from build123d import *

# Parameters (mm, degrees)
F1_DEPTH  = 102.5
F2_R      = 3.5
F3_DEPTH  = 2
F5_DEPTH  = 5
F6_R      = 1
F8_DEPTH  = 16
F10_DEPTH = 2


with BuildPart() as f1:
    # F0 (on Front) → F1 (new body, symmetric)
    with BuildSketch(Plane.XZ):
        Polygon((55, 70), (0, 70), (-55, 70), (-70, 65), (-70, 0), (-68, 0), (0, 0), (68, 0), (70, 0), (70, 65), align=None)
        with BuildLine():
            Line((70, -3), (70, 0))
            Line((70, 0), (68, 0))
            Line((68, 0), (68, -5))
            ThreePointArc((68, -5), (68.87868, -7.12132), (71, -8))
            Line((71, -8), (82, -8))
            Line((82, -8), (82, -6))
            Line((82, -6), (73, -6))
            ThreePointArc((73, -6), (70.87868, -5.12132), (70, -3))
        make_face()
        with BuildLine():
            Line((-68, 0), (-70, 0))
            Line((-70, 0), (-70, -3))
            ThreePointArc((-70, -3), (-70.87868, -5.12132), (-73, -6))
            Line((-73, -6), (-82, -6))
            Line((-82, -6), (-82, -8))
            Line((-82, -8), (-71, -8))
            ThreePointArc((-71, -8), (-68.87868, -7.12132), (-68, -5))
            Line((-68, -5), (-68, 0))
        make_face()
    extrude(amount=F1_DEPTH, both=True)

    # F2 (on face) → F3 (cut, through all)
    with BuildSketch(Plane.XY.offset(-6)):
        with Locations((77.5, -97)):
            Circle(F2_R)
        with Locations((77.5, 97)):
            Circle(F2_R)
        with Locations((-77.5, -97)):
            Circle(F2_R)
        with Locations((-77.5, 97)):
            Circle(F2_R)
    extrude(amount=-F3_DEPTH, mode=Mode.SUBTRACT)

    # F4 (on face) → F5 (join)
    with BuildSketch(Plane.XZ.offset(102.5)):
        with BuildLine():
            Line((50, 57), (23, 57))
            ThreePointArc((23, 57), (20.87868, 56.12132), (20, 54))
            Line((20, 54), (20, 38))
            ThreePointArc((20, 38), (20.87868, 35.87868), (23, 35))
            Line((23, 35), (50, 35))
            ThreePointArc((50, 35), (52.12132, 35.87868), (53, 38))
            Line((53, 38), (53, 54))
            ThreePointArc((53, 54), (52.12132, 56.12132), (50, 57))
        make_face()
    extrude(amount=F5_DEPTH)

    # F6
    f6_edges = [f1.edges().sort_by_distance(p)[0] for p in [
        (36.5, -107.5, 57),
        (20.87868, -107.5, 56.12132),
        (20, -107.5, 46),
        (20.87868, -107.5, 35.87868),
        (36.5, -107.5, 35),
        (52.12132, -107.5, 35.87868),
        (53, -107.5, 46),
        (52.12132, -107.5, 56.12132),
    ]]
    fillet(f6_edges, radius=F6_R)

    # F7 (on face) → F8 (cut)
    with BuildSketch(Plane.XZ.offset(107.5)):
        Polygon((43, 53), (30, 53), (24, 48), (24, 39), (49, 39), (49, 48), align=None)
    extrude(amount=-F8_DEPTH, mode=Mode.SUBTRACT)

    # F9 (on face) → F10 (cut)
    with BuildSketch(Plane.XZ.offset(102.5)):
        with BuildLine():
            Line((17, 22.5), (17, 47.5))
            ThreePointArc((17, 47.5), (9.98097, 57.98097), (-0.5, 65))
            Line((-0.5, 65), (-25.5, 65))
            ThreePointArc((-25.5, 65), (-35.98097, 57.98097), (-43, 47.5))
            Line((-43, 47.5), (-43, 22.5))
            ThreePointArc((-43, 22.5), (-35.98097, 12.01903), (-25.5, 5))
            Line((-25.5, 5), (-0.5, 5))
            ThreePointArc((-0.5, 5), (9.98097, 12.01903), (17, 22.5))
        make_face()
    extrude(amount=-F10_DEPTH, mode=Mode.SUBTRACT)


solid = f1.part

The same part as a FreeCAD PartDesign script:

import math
import FreeCAD as App
import Part
import Sketcher
Q = App.Units.Quantity


def edges_at(feature, points):
    """Names of the edges that pass closest to the given points."""
    edges = feature.Shape.Edges
    near = lambda p: min(range(len(edges)), key=lambda i: edges[i].distToShape(Part.Vertex(*p))[0])
    return sorted({f"Edge{near(p) + 1}" for p in points})


def add_polygon(sketch, points):
    """Adds a closed chain of lines whose ends are joined by coincident constraints."""
    first, n = sketch.GeometryCount, len(points)
    for a, b in zip(points, points[1:] + points[:1]):
        sketch.addGeometry(Part.LineSegment(App.Vector(*a, 0), App.Vector(*b, 0)), False)
    for i in range(n):
        sketch.addConstraint(Sketcher.Constraint("Coincident", first + i, 2, first + (i + 1) % n, 1))

doc = App.newDocument("Part")
body = doc.addObject("PartDesign::Body", "Body")

sketch1 = doc.addObject("Sketcher::SketchObject", "Sketch")
body.addObject(sketch1)
sketch1.AttachmentSupport = (doc.XZ_Plane, [""])
sketch1.MapMode = "FlatFace"
sketch1.addGeometry([
    Part.LineSegment(App.Vector(55, 70, 0), App.Vector(-55, 70, 0)),
    Part.LineSegment(App.Vector(-55, 70, 0), App.Vector(-70, 65, 0)),
    Part.LineSegment(App.Vector(-70, 65, 0), App.Vector(-70, -3, 0)),
    Part.ArcOfCircle(Part.Circle(App.Vector(-73, -3, 0), App.Vector(0, 0, 1), 3), math.radians(-90), math.radians(0)),
    Part.LineSegment(App.Vector(-73, -6, 0), App.Vector(-82, -6, 0)),
    Part.LineSegment(App.Vector(-82, -6, 0), App.Vector(-82, -8, 0)),
    Part.LineSegment(App.Vector(-82, -8, 0), App.Vector(-71, -8, 0)),
    Part.ArcOfCircle(Part.Circle(App.Vector(-71, -5, 0), App.Vector(0, 0, 1), 3), math.radians(-90), math.radians(0)),
    Part.LineSegment(App.Vector(-68, -5, 0), App.Vector(-68, 0, 0)),
    Part.LineSegment(App.Vector(-68, 0, 0), App.Vector(68, 0, 0)),
    Part.LineSegment(App.Vector(68, 0, 0), App.Vector(68, -5, 0)),
    Part.ArcOfCircle(Part.Circle(App.Vector(71, -5, 0), App.Vector(0, 0, 1), 3), math.radians(-180), math.radians(-90)),
    Part.LineSegment(App.Vector(71, -8, 0), App.Vector(82, -8, 0)),
    Part.LineSegment(App.Vector(82, -8, 0), App.Vector(82, -6, 0)),
    Part.LineSegment(App.Vector(82, -6, 0), App.Vector(73, -6, 0)),
    Part.ArcOfCircle(Part.Circle(App.Vector(73, -3, 0), App.Vector(0, 0, 1), 3), math.radians(-180), math.radians(-90)),
    Part.LineSegment(App.Vector(70, -3, 0), App.Vector(70, 65, 0)),
    Part.LineSegment(App.Vector(70, 65, 0), App.Vector(55, 70, 0)),
], False)
sketch1.addConstraint([
    Sketcher.Constraint("Coincident", 0, 2, 1, 1),
    Sketcher.Constraint("Coincident", 1, 2, 2, 1),
    Sketcher.Constraint("Tangent", 2, 2, 3, 2),
    Sketcher.Constraint("Tangent", 3, 1, 4, 1),
    Sketcher.Constraint("Coincident", 4, 2, 5, 1),
    Sketcher.Constraint("Coincident", 5, 2, 6, 1),
    Sketcher.Constraint("Tangent", 6, 2, 7, 1),
    Sketcher.Constraint("Tangent", 7, 2, 8, 1),
    Sketcher.Constraint("Coincident", 8, 2, 9, 1),
    Sketcher.Constraint("Coincident", 9, 2, 10, 1),
    Sketcher.Constraint("Tangent", 10, 2, 11, 1),
    Sketcher.Constraint("Tangent", 11, 2, 12, 1),
    Sketcher.Constraint("Coincident", 12, 2, 13, 1),
    Sketcher.Constraint("Coincident", 13, 2, 14, 1),
    Sketcher.Constraint("Tangent", 14, 2, 15, 2),
    Sketcher.Constraint("Tangent", 15, 1, 16, 1),
    Sketcher.Constraint("Coincident", 16, 2, 17, 1),
    Sketcher.Constraint("Coincident", 17, 2, 0, 1),
    Sketcher.Constraint("Horizontal", 0),
    Sketcher.Constraint("Vertical", 2),
    Sketcher.Constraint("Horizontal", 4),
    Sketcher.Constraint("Vertical", 5),
    Sketcher.Constraint("Horizontal", 6),
    Sketcher.Constraint("Vertical", 8),
    Sketcher.Constraint("Horizontal", 9),
    Sketcher.Constraint("Vertical", 10),
    Sketcher.Constraint("Horizontal", 12),
    Sketcher.Constraint("Vertical", 13),
    Sketcher.Constraint("Horizontal", 14),
    Sketcher.Constraint("Vertical", 16),
    Sketcher.Constraint("Equal", 3, 7),
    Sketcher.Constraint("Equal", 7, 11),
    Sketcher.Constraint("Equal", 11, 15),
    Sketcher.Constraint("Symmetric", 8, 2, 9, 2, -1, 1),
    Sketcher.Constraint("Symmetric", 3, 3, 15, 3, -2),
    Sketcher.Constraint("Symmetric", 5, 2, 12, 2, -2),
    Sketcher.Constraint("Horizontal", 1, 2, 16, 2),
    Sketcher.Constraint("Equal", 1, 17),
    Sketcher.Constraint("Radius", 3, Q("3.000001 mm")),
    Sketcher.Constraint("DistanceX", 0, 2, 0, 1, Q("110 mm")),
    Sketcher.Constraint("DistanceX", 4, 2, 4, 1, Q("9 mm")),
    Sketcher.Constraint("DistanceX", 6, 1, 6, 2, Q("11 mm")),
    Sketcher.Constraint("DistanceX", 9, 1, 9, 2, Q("136 mm")),
    Sketcher.Constraint("DistanceY", 2, 2, 2, 1, Q("68 mm")),
    Sketcher.Constraint("DistanceY", 5, 2, 5, 1, Q("2 mm")),
    Sketcher.Constraint("DistanceY", 8, 1, 8, 2, Q("5 mm")),
    Sketcher.Constraint("DistanceY", -1, 1, 0, 2, Q("70 mm")),
])
pad1 = doc.addObject("PartDesign::Pad", "Pad")
body.addObject(pad1)
pad1.Profile = sketch1
pad1.Length = 205
pad1.Midplane = True

sketch2 = doc.addObject("Sketcher::SketchObject", "Sketch001")
body.addObject(sketch2)
sketch2.AttachmentSupport = (doc.XY_Plane, [""])
sketch2.MapMode = "FlatFace"
sketch2.AttachmentOffset = App.Placement(App.Vector(0, 0, -6), App.Rotation())
sketch2.addGeometry([
    Part.Circle(App.Vector(77.5, -97, 0), App.Vector(0, 0, 1), 3.5),
    Part.Circle(App.Vector(77.5, 97, 0), App.Vector(0, 0, 1), 3.5),
    Part.Circle(App.Vector(-77.5, -97, 0), App.Vector(0, 0, 1), 3.5),
    Part.Circle(App.Vector(-77.5, 97, 0), App.Vector(0, 0, 1), 3.5),
], False)
sketch2.addConstraint([
    Sketcher.Constraint("Equal", 0, 1),
    Sketcher.Constraint("Equal", 1, 2),
    Sketcher.Constraint("Equal", 2, 3),
    Sketcher.Constraint("Symmetric", 1, 3, 2, 3, -1, 1),
    Sketcher.Constraint("Symmetric", 0, 3, 3, 3, -1, 1),
    Sketcher.Constraint("Symmetric", 0, 3, 2, 3, -2),
    Sketcher.Constraint("Diameter", 0, Q("7 mm")),
    Sketcher.Constraint("DistanceY", 0, 3, -1, 1, Q("97 mm")),
    Sketcher.Constraint("DistanceX", 2, 3, 0, 3, Q("155 mm")),
])
pocket1 = doc.addObject("PartDesign::Pocket", "Pocket")
body.addObject(pocket1)
pocket1.Profile = sketch2
pocket1.Type = "ThroughAll"

sketch3 = doc.addObject("Sketcher::SketchObject", "Sketch002")
body.addObject(sketch3)
sketch3.AttachmentSupport = (doc.XZ_Plane, [""])
sketch3.MapMode = "FlatFace"
sketch3.AttachmentOffset = App.Placement(App.Vector(0, 0, 102.5), App.Rotation())
sketch3.addGeometry([
    Part.LineSegment(App.Vector(50, 57, 0), App.Vector(23, 57, 0)),
    Part.ArcOfCircle(Part.Circle(App.Vector(23, 54, 0), App.Vector(0, 0, 1), 3), math.radians(90), math.radians(180)),
    Part.LineSegment(App.Vector(20, 54, 0), App.Vector(20, 38, 0)),
    Part.ArcOfCircle(Part.Circle(App.Vector(23, 38, 0), App.Vector(0, 0, 1), 3), math.radians(-180), math.radians(-90)),
    Part.LineSegment(App.Vector(23, 35, 0), App.Vector(50, 35, 0)),
    Part.ArcOfCircle(Part.Circle(App.Vector(50, 38, 0), App.Vector(0, 0, 1), 3), math.radians(-90), math.radians(0)),
    Part.LineSegment(App.Vector(53, 38, 0), App.Vector(53, 54, 0)),
    Part.ArcOfCircle(Part.Circle(App.Vector(50, 54, 0), App.Vector(0, 0, 1), 3), math.radians(0), math.radians(90)),
], False)
sketch3.addConstraint([
    Sketcher.Constraint("Tangent", 0, 2, 1, 1),
    Sketcher.Constraint("Tangent", 1, 2, 2, 1),
    Sketcher.Constraint("Tangent", 2, 2, 3, 1),
    Sketcher.Constraint("Tangent", 3, 2, 4, 1),
    Sketcher.Constraint("Tangent", 4, 2, 5, 1),
    Sketcher.Constraint("Tangent", 5, 2, 6, 1),
    Sketcher.Constraint("Tangent", 6, 2, 7, 1),
    Sketcher.Constraint("Tangent", 7, 2, 0, 1),
    Sketcher.Constraint("Horizontal", 0),
    Sketcher.Constraint("Vertical", 2),
    Sketcher.Constraint("Horizontal", 4),
    Sketcher.Constraint("Vertical", 6),
    Sketcher.Constraint("Equal", 1, 3),
    Sketcher.Constraint("Equal", 3, 5),
    Sketcher.Constraint("Equal", 5, 7),
    Sketcher.Constraint("Radius", 1, Q("3.000001 mm")),
    Sketcher.Constraint("DistanceX", 0, 2, 0, 1, Q("27 mm")),
    Sketcher.Constraint("DistanceY", 2, 2, 2, 1, Q("16 mm")),
    Sketcher.Constraint("DistanceX", -1, 1, 1, 3, Q("23.000001 mm")),
    Sketcher.Constraint("DistanceY", -1, 1, 1, 3, Q("53.999999 mm")),
])
pad2 = doc.addObject("PartDesign::Pad", "Pad001")
body.addObject(pad2)
pad2.Profile = sketch3
pad2.Length = 5
doc.recompute()

fillet = doc.addObject("PartDesign::Fillet", "Fillet")
body.addObject(fillet)
fillet.Base = (pad2, edges_at(pad2, [
    (36.5, -107.5, 57),
    (20.879, -107.5, 56.121),
    (20, -107.5, 46),
    (20.879, -107.5, 35.879),
    (36.5, -107.5, 35),
    (52.121, -107.5, 35.879),
    (53, -107.5, 46),
    (52.121, -107.5, 56.121),
]))
fillet.Radius = 1

sketch4 = doc.addObject("Sketcher::SketchObject", "Sketch003")
body.addObject(sketch4)
sketch4.AttachmentSupport = (doc.XZ_Plane, [""])
sketch4.MapMode = "FlatFace"
sketch4.AttachmentOffset = App.Placement(App.Vector(0, 0, 107.5), App.Rotation())
add_polygon(sketch4, [(43, 53), (30, 53), (24, 48), (24, 39), (49, 39), (49, 48)])
sketch4.addConstraint([
    Sketcher.Constraint("Horizontal", 0),
    Sketcher.Constraint("Vertical", 2),
    Sketcher.Constraint("Horizontal", 3),
    Sketcher.Constraint("Vertical", 4),
    Sketcher.Constraint("Horizontal", 1, 2, 4, 2),
    Sketcher.Constraint("Equal", 1, 5),
    Sketcher.Constraint("DistanceX", 0, 2, 0, 1, Q("13 mm")),
    Sketcher.Constraint("DistanceX", 3, 1, 3, 2, Q("25 mm")),
    Sketcher.Constraint("DistanceY", 2, 2, 2, 1, Q("9 mm")),
    Sketcher.Constraint("DistanceX", -1, 1, 0, 2, Q("30 mm")),
    Sketcher.Constraint("DistanceY", -1, 1, 0, 2, Q("53 mm")),
    Sketcher.Constraint("DistanceY", -1, 1, 1, 2, Q("48 mm")),
])
pocket2 = doc.addObject("PartDesign::Pocket", "Pocket001")
body.addObject(pocket2)
pocket2.Profile = sketch4
pocket2.Length = 16

sketch5 = doc.addObject("Sketcher::SketchObject", "Sketch004")
body.addObject(sketch5)
sketch5.AttachmentSupport = (doc.XZ_Plane, [""])
sketch5.MapMode = "FlatFace"
sketch5.AttachmentOffset = App.Placement(App.Vector(0, 0, 102.5), App.Rotation())
sketch5.addGeometry([
    Part.LineSegment(App.Vector(17, 22, 0), App.Vector(17, 48, 0)),
    Part.ArcOfCircle(Part.Circle(App.Vector(-13, 35, 0), App.Vector(0, 0, 1), 33), math.radians(23), math.radians(67)),
    Part.LineSegment(App.Vector(0, 65, 0), App.Vector(-26, 65, 0)),
    Part.ArcOfCircle(Part.Circle(App.Vector(-13, 35, 0), App.Vector(0, 0, 1), 33), math.radians(113), math.radians(157)),
    Part.LineSegment(App.Vector(-43, 48, 0), App.Vector(-43, 22, 0)),
    Part.ArcOfCircle(Part.Circle(App.Vector(-13, 35, 0), App.Vector(0, 0, 1), 33), math.radians(-157), math.radians(-113)),
    Part.LineSegment(App.Vector(-26, 5, 0), App.Vector(0, 5, 0)),
    Part.ArcOfCircle(Part.Circle(App.Vector(-13, 35, 0), App.Vector(0, 0, 1), 33), math.radians(-67), math.radians(-23)),
], False)
sketch5.addConstraint([
    Sketcher.Constraint("Coincident", 0, 2, 1, 1),
    Sketcher.Constraint("Coincident", 1, 2, 2, 1),
    Sketcher.Constraint("Coincident", 2, 2, 3, 1),
    Sketcher.Constraint("Coincident", 3, 2, 4, 1),
    Sketcher.Constraint("Coincident", 4, 2, 5, 1),
    Sketcher.Constraint("Coincident", 5, 2, 6, 1),
    Sketcher.Constraint("Coincident", 6, 2, 7, 1),
    Sketcher.Constraint("Coincident", 7, 2, 0, 1),
    Sketcher.Constraint("Vertical", 0),
    Sketcher.Constraint("Horizontal", 2),
    Sketcher.Constraint("Vertical", 4),
    Sketcher.Constraint("Horizontal", 6),
    Sketcher.Constraint("Equal", 1, 3),
    Sketcher.Constraint("Equal", 3, 5),
    Sketcher.Constraint("Equal", 5, 7),
    Sketcher.Constraint("Horizontal", 1, 3, 3, 3),
    Sketcher.Constraint("Horizontal", 5, 3, 7, 3),
    Sketcher.Constraint("Horizontal", 0, 2, 3, 2),
    Sketcher.Constraint("Horizontal", 4, 2, 7, 2),
    Sketcher.Constraint("Vertical", 3, 3, 5, 3),
    Sketcher.Constraint("Vertical", 2, 2, 5, 2),
    Sketcher.Constraint("Equal", 6, 0),
    Sketcher.Constraint("DistanceX", 2, 2, 2, 1, Q("25 mm")),
    Sketcher.Constraint("DistanceX", -1, 1, 0, 2, Q("17 mm")),
    Sketcher.Constraint("DistanceY", -1, 1, 1, 2, Q("65 mm")),
    Sketcher.Constraint("DistanceX", 3, 2, -1, 1, Q("43 mm")),
    Sketcher.Constraint("DistanceY", -1, 1, 5, 2, Q("5 mm")),
    Sketcher.Constraint("Radius", 1, Q("32.500007 mm")),
])
pocket3 = doc.addObject("PartDesign::Pocket", "Pocket002")
body.addObject(pocket3)
pocket3.Profile = sketch5
pocket3.Length = 2

doc.recompute()
